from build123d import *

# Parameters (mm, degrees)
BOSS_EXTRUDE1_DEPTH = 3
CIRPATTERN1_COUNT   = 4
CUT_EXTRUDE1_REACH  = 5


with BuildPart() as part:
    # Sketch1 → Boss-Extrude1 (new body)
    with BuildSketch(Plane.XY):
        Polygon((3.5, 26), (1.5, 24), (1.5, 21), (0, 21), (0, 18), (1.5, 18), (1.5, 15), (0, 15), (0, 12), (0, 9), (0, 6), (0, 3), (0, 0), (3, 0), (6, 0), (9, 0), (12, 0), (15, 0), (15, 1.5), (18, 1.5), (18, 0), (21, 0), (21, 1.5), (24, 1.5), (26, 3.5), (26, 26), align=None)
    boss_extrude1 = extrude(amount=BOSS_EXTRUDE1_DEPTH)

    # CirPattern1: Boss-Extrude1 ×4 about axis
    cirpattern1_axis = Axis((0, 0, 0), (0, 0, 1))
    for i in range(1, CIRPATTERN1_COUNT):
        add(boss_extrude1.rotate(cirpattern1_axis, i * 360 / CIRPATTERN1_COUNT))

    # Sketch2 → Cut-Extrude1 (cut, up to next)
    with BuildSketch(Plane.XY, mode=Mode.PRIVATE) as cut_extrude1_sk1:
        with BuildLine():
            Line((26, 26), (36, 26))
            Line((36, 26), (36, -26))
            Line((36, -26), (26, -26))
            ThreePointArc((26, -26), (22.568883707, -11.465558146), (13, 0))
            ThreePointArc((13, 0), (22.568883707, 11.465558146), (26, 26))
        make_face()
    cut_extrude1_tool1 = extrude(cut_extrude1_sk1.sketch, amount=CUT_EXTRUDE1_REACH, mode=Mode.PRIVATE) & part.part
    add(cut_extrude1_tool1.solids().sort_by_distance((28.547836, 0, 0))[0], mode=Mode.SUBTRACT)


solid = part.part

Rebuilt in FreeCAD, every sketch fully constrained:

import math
import FreeCAD as App
import Part
import Sketcher

V = App.Vector
Q = App.Units.Quantity

doc = App.newDocument("Part")
body = doc.addObject("PartDesign::Body", "Body")

sketch1 = body.newObject("Sketcher::SketchObject", "Sketch")
sketch1.AttachmentSupport = (doc.getObject("XY_Plane"), [""])
sketch1.MapMode = "FlatFace"
sketch1.addGeometry(Part.LineSegment(V(3.5, 26, 0), V(1.5, 24, 0)), False)
sketch1.addGeometry(Part.LineSegment(V(1.5, 24, 0), V(1.5, 21, 0)), False)
sketch1.addGeometry(Part.LineSegment(V(1.5, 21, 0), V(0, 21, 0)), False)
sketch1.addGeometry(Part.LineSegment(V(0, 21, 0), V(0, 18, 0)), False)
sketch1.addGeometry(Part.LineSegment(V(0, 18, 0), V(1.5, 18, 0)), False)
sketch1.addGeometry(Part.LineSegment(V(1.5, 18, 0), V(1.5, 15, 0)), False)
sketch1.addGeometry(Part.LineSegment(V(1.5, 15, 0), V(0, 15, 0)), False)
sketch1.addGeometry(Part.LineSegment(V(0, 15, 0), V(0, 0, 0)), False)
sketch1.addGeometry(Part.LineSegment(V(0, 0, 0), V(15, 0, 0)), False)
sketch1.addGeometry(Part.LineSegment(V(15, 0, 0), V(15, 1.5, 0)), False)
sketch1.addGeometry(Part.LineSegment(V(15, 1.5, 0), V(18, 1.5, 0)), False)
sketch1.addGeometry(Part.LineSegment(V(18, 1.5, 0), V(18, 0, 0)), False)
sketch1.addGeometry(Part.LineSegment(V(18, 0, 0), V(21, 0, 0)), False)
sketch1.addGeometry(Part.LineSegment(V(21, 0, 0), V(21, 1.5, 0)), False)
sketch1.addGeometry(Part.LineSegment(V(21, 1.5, 0), V(24, 1.5, 0)), False)
sketch1.addGeometry(Part.LineSegment(V(24, 1.5, 0), V(26, 3.5, 0)), False)
sketch1.addGeometry(Part.LineSegment(V(26, 3.5, 0), V(26, 26, 0)), False)
sketch1.addGeometry(Part.LineSegment(V(26, 26, 0), V(3.5, 26, 0)), False)
sketch1.addConstraint(Sketcher.Constraint("Coincident", 0, 2, 1, 1))
sketch1.addConstraint(Sketcher.Constraint("Coincident", 1, 2, 2, 1))
sketch1.addConstraint(Sketcher.Constraint("Coincident", 2, 2, 3, 1))
sketch1.addConstraint(Sketcher.Constraint("Coincident", 3, 2, 4, 1))
sketch1.addConstraint(Sketcher.Constraint("Coincident", 4, 2, 5, 1))
sketch1.addConstraint(Sketcher.Constraint("Coincident", 5, 2, 6, 1))
sketch1.addConstraint(Sketcher.Constraint("Coincident", 6, 2, 7, 1))
sketch1.addConstraint(Sketcher.Constraint("Coincident", 7, 2, 8, 1))
sketch1.addConstraint(Sketcher.Constraint("Coincident", 8, 2, 9, 1))
sketch1.addConstraint(Sketcher.Constraint("Coincident", 9, 2, 10, 1))
sketch1.addConstraint(Sketcher.Constraint("Coincident", 10, 2, 11, 1))
sketch1.addConstraint(Sketcher.Constraint("Coincident", 11, 2, 12, 1))
sketch1.addConstraint(Sketcher.Constraint("Coincident", 12, 2, 13, 1))
sketch1.addConstraint(Sketcher.Constraint("Coincident", 13, 2, 14, 1))
sketch1.addConstraint(Sketcher.Constraint("Coincident", 14, 2, 15, 1))
sketch1.addConstraint(Sketcher.Constraint("Coincident", 15, 2, 16, 1))
sketch1.addConstraint(Sketcher.Constraint("Coincident", 16, 2, 17, 1))
sketch1.addConstraint(Sketcher.Constraint("Coincident", 17, 2, 0, 1))
sketch1.addConstraint(Sketcher.Constraint("Vertical", 1))
sketch1.addConstraint(Sketcher.Constraint("Horizontal", 2))
sketch1.addConstraint(Sketcher.Constraint("Vertical", 3))
sketch1.addConstraint(Sketcher.Constraint("Horizontal", 4))
sketch1.addConstraint(Sketcher.Constraint("Vertical", 5))
sketch1.addConstraint(Sketcher.Constraint("Horizontal", 6))
sketch1.addConstraint(Sketcher.Constraint("Vertical", 7))
sketch1.addConstraint(Sketcher.Constraint("Horizontal", 8))
sketch1.addConstraint(Sketcher.Constraint("Vertical", 9))
sketch1.addConstraint(Sketcher.Constraint("Horizontal", 10))
sketch1.addConstraint(Sketcher.Constraint("Vertical", 11))
sketch1.addConstraint(Sketcher.Constraint("Horizontal", 12))
sketch1.addConstraint(Sketcher.Constraint("Vertical", 13))
sketch1.addConstraint(Sketcher.Constraint("Horizontal", 14))
sketch1.addConstraint(Sketcher.Constraint("Vertical", 16))
sketch1.addConstraint(Sketcher.Constraint("Horizontal", 17))
sketch1.addConstraint(Sketcher.Constraint("Coincident", 7, 2, -1, 1))
sketch1.addConstraint(Sketcher.Constraint("PointOnObject", 2, 2, -2))
sketch1.addConstraint(Sketcher.Constraint("PointOnObject", 11, 2, -1))
sketch1.addConstraint(Sketcher.Constraint("Parallel", 0, 15))
sketch1.addConstraint(Sketcher.Constraint("Horizontal", 10, 2, 13, 2))
sketch1.addConstraint(Sketcher.Constraint("Vertical", 1, 2, 4, 2))
sketch1.addConstraint(Sketcher.Constraint("Equal", 10, 12))
sketch1.addConstraint(Sketcher.Constraint("Equal", 12, 14))
sketch1.addConstraint(Sketcher.Constraint("Equal", 14, 1))
sketch1.addConstraint(Sketcher.Constraint("Equal", 1, 3))
sketch1.addConstraint(Sketcher.Constraint("Equal", 3, 5))
sketch1.addConstraint(Sketcher.Constraint("Equal", 8, 7))
sketch1.addConstraint(Sketcher.Constraint("Equal", 6, 9))
sketch1.addConstraint(Sketcher.Constraint("Equal", 17, 16))
sketch1.addConstraint(Sketcher.Constraint("DistanceX", 8, 1, 8, 2, 15.0))
sketch1.addConstraint(Sketcher.Constraint("DistanceX", 10, 1, 10, 2, 3.0))
sketch1.addConstraint(Sketcher.Constraint("Angle", 0, Q("-135 deg")))
sketch1.addConstraint(Sketcher.Constraint("DistanceX", 2, 2, 2, 1, 1.5))
sketch1.addConstraint(Sketcher.Constraint("DistanceX", -1, 1, 15, 2, 26.0))
pad1 = body.newObject("PartDesign::Pad", "Pad")
pad1.Profile = sketch1
pad1.Length = 3
doc.recompute()

polarpattern = body.newObject("PartDesign::PolarPattern", "PolarPattern")
polarpattern.Originals = [pad1]
polarpattern.Axis = (doc.getObject("Z_Axis"), [""])
polarpattern.Angle = 360
polarpattern.Occurrences = 4
body.Tip = polarpattern

sketch2 = body.newObject("Sketcher::SketchObject", "Sketch001")
sketch2.AttachmentSupport = (doc.getObject("XY_Plane"), [""])
sketch2.MapMode = "FlatFace"
sketch2.addGeometry(Part.LineSegment(V(36, 26, 0), V(26, 26, 0)), False)
sketch2.addGeometry(Part.ArcOfCircle(Part.Circle(V(-7, 26, 0), V(0, 0, 1), 33), math.radians(-53), math.radians(0)), False)
sketch2.addGeometry(Part.ArcOfCircle(Part.Circle(V(-7, -26, 0), V(0, 0, 1), 33), math.radians(0), math.radians(53)), False)
sketch2.addGeometry(Part.LineSegment(V(26, -26, 0), V(36, -26, 0)), False)
sketch2.addGeometry(Part.LineSegment(V(36, -26, 0), V(36, 26, 0)), False)
sketch2.addConstraint(Sketcher.Constraint("Coincident", 0, 2, 1, 2))
sketch2.addConstraint(Sketcher.Constraint("Coincident", 1, 1, 2, 2))
sketch2.addConstraint(Sketcher.Constraint("Coincident", 2, 1, 3, 1))
sketch2.addConstraint(Sketcher.Constraint("Coincident", 3, 2, 4, 1))
sketch2.addConstraint(Sketcher.Constraint("Coincident", 4, 2, 0, 1))
sketch2.addConstraint(Sketcher.Constraint("Horizontal", 0))
sketch2.addConstraint(Sketcher.Constraint("Horizontal", 3))
sketch2.addConstraint(Sketcher.Constraint("Vertical", 4))
sketch2.addConstraint(Sketcher.Constraint("Equal", 1, 2))
sketch2.addConstraint(Sketcher.Constraint("Symmetric", 1, 3, 2, 3, -1))
sketch2.addConstraint(Sketcher.Constraint("Horizontal", 1, 3, 0, 2))
sketch2.addConstraint(Sketcher.Constraint("Radius", 1, 32.5))
sketch2.addConstraint(Sketcher.Constraint("DistanceX", 0, 2, 0, 1, 10.0))
sketch2.addConstraint(Sketcher.Constraint("DistanceY", 4, 1, 4, 2, 52.0))
sketch2.addConstraint(Sketcher.Constraint("DistanceY", -1, 1, 1, 3, 26.0))
sketch2.addConstraint(Sketcher.Constraint("DistanceX", -1, 1, 0, 2, 26.0))
pocket1 = body.newObject("PartDesign::Pocket", "Pocket")
pocket1.Profile = sketch2
pocket1.Length = 3
pocket1.Reversed = True

doc.recompute()
